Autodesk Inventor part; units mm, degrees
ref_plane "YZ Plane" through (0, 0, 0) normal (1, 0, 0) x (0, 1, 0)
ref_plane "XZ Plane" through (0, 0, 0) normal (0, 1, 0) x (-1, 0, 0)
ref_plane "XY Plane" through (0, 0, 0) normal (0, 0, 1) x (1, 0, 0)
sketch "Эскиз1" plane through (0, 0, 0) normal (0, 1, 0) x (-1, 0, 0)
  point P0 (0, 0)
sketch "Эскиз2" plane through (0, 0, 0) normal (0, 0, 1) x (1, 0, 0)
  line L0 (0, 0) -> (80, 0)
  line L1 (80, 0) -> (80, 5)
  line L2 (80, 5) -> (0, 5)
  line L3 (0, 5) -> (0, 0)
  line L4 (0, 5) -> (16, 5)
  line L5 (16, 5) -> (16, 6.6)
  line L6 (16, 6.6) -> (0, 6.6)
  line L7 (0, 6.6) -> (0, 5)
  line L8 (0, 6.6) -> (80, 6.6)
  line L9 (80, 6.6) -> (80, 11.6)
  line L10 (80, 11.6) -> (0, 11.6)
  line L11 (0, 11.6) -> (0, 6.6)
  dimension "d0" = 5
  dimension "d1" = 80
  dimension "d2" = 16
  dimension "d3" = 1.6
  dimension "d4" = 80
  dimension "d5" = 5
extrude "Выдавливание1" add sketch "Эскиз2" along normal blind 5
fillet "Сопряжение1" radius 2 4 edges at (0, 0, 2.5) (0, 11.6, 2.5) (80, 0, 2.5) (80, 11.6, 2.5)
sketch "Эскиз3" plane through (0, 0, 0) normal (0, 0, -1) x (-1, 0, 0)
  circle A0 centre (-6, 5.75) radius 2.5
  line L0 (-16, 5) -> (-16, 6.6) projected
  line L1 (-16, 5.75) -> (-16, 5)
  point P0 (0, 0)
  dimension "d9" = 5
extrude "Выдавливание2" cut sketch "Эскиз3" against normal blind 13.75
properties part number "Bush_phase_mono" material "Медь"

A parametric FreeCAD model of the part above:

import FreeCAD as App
import Part
import Sketcher


def edges_at(feature, points):
    """Names of the edges that pass closest to the given points."""
    edges = feature.Shape.Edges
    near = lambda p: min(range(len(edges)), key=lambda i: edges[i].distToShape(Part.Vertex(*p))[0])
    return sorted({f"Edge{near(p) + 1}" for p in points})

doc = App.newDocument("Part")
body = doc.addObject("PartDesign::Body", "Body")

sketch1 = body.newObject("Sketcher::SketchObject", "Sketch")
sketch1.AttachmentSupport = (doc.getObject("XY_Plane"), [""])
sketch1.MapMode = "FlatFace"
sketch1.addGeometry(Part.LineSegment(App.Vector(0, 0, 0), App.Vector(80, 0, 0)), False)
sketch1.addGeometry(Part.LineSegment(App.Vector(80, 0, 0), App.Vector(80, 5, 0)), False)
sketch1.addGeometry(Part.LineSegment(App.Vector(80, 5, 0), App.Vector(16, 5, 0)), False)
sketch1.addGeometry(Part.LineSegment(App.Vector(16, 5, 0), App.Vector(16, 6.6, 0)), False)
sketch1.addGeometry(Part.LineSegment(App.Vector(16, 6.6, 0), App.Vector(80, 6.6, 0)), False)
sketch1.addGeometry(Part.LineSegment(App.Vector(80, 6.6, 0), App.Vector(80, 11.6, 0)), False)
sketch1.addGeometry(Part.LineSegment(App.Vector(80, 11.6, 0), App.Vector(0, 11.6, 0)), False)
sketch1.addGeometry(Part.LineSegment(App.Vector(0, 11.6, 0), App.Vector(0, 0, 0)), False)
sketch1.addConstraint(Sketcher.Constraint("Coincident", 0, 2, 1, 1))
sketch1.addConstraint(Sketcher.Constraint("Coincident", 1, 2, 2, 1))
sketch1.addConstraint(Sketcher.Constraint("Coincident", 2, 2, 3, 1))
sketch1.addConstraint(Sketcher.Constraint("Coincident", 3, 2, 4, 1))
sketch1.addConstraint(Sketcher.Constraint("Coincident", 4, 2, 5, 1))
sketch1.addConstraint(Sketcher.Constraint("Coincident", 5, 2, 6, 1))
sketch1.addConstraint(Sketcher.Constraint("Coincident", 6, 2, 7, 1))
sketch1.addConstraint(Sketcher.Constraint("Coincident", 7, 2, 0, 1))
sketch1.addConstraint(Sketcher.Constraint("Horizontal", 0))
sketch1.addConstraint(Sketcher.Constraint("Vertical", 1))
sketch1.addConstraint(Sketcher.Constraint("Horizontal", 2))
sketch1.addConstraint(Sketcher.Constraint("Vertical", 3))
sketch1.addConstraint(Sketcher.Constraint("Horizontal", 4))
sketch1.addConstraint(Sketcher.Constraint("Vertical", 5))
sketch1.addConstraint(Sketcher.Constraint("Horizontal", 6))
sketch1.addConstraint(Sketcher.Constraint("Vertical", 7))
sketch1.addConstraint(Sketcher.Constraint("Coincident", 7, 2, -1, 1))
sketch1.addConstraint(Sketcher.Constraint("Vertical", 1, 2, 4, 2))
sketch1.addConstraint(Sketcher.Constraint("Equal", 1, 5))
sketch1.addConstraint(Sketcher.Constraint("DistanceX", 0, 1, 0, 2, 80.0))
sketch1.addConstraint(Sketcher.Constraint("DistanceY", 1, 1, 1, 2, 5.0))
sketch1.addConstraint(Sketcher.Constraint("DistanceY", 3, 1, 3, 2, 1.6))
sketch1.addConstraint(Sketcher.Constraint("DistanceX", -1, 1, 2, 2, 16.0))
pad1 = body.newObject("PartDesign::Pad", "Pad")
pad1.Profile = sketch1
pad1.Length = 5
doc.recompute()

fillet = body.newObject("PartDesign::Fillet", "Fillet")
fillet.Base = (pad1, edges_at(pad1, [
    (0, 0, 2.5),
    (0, 11.6, 2.5),
    (80, 0, 2.5),
    (80, 11.6, 2.5),
]))
fillet.Radius = 2

sketch2 = body.newObject("Sketcher::SketchObject", "Sketch001")
sketch2.AttachmentSupport = (doc.getObject("XY_Plane"), [""])
sketch2.MapMode = "FlatFace"
sketch2.addGeometry(Part.Circle(App.Vector(6, 5.8, 0), App.Vector(0, 0, 1), 2.5), False)
sketch2.addConstraint(Sketcher.Constraint("Diameter", 0, 5.0))
sketch2.addConstraint(Sketcher.Constraint("DistanceX", -1, 1, 0, 3, 6.0))
sketch2.addConstraint(Sketcher.Constraint("DistanceY", -1, 1, 0, 3, 5.75))
pocket1 = body.newObject("PartDesign::Pocket", "Pocket")
pocket1.Profile = sketch2
pocket1.Length = 13.75
pocket1.Reversed = True

doc.recompute()
